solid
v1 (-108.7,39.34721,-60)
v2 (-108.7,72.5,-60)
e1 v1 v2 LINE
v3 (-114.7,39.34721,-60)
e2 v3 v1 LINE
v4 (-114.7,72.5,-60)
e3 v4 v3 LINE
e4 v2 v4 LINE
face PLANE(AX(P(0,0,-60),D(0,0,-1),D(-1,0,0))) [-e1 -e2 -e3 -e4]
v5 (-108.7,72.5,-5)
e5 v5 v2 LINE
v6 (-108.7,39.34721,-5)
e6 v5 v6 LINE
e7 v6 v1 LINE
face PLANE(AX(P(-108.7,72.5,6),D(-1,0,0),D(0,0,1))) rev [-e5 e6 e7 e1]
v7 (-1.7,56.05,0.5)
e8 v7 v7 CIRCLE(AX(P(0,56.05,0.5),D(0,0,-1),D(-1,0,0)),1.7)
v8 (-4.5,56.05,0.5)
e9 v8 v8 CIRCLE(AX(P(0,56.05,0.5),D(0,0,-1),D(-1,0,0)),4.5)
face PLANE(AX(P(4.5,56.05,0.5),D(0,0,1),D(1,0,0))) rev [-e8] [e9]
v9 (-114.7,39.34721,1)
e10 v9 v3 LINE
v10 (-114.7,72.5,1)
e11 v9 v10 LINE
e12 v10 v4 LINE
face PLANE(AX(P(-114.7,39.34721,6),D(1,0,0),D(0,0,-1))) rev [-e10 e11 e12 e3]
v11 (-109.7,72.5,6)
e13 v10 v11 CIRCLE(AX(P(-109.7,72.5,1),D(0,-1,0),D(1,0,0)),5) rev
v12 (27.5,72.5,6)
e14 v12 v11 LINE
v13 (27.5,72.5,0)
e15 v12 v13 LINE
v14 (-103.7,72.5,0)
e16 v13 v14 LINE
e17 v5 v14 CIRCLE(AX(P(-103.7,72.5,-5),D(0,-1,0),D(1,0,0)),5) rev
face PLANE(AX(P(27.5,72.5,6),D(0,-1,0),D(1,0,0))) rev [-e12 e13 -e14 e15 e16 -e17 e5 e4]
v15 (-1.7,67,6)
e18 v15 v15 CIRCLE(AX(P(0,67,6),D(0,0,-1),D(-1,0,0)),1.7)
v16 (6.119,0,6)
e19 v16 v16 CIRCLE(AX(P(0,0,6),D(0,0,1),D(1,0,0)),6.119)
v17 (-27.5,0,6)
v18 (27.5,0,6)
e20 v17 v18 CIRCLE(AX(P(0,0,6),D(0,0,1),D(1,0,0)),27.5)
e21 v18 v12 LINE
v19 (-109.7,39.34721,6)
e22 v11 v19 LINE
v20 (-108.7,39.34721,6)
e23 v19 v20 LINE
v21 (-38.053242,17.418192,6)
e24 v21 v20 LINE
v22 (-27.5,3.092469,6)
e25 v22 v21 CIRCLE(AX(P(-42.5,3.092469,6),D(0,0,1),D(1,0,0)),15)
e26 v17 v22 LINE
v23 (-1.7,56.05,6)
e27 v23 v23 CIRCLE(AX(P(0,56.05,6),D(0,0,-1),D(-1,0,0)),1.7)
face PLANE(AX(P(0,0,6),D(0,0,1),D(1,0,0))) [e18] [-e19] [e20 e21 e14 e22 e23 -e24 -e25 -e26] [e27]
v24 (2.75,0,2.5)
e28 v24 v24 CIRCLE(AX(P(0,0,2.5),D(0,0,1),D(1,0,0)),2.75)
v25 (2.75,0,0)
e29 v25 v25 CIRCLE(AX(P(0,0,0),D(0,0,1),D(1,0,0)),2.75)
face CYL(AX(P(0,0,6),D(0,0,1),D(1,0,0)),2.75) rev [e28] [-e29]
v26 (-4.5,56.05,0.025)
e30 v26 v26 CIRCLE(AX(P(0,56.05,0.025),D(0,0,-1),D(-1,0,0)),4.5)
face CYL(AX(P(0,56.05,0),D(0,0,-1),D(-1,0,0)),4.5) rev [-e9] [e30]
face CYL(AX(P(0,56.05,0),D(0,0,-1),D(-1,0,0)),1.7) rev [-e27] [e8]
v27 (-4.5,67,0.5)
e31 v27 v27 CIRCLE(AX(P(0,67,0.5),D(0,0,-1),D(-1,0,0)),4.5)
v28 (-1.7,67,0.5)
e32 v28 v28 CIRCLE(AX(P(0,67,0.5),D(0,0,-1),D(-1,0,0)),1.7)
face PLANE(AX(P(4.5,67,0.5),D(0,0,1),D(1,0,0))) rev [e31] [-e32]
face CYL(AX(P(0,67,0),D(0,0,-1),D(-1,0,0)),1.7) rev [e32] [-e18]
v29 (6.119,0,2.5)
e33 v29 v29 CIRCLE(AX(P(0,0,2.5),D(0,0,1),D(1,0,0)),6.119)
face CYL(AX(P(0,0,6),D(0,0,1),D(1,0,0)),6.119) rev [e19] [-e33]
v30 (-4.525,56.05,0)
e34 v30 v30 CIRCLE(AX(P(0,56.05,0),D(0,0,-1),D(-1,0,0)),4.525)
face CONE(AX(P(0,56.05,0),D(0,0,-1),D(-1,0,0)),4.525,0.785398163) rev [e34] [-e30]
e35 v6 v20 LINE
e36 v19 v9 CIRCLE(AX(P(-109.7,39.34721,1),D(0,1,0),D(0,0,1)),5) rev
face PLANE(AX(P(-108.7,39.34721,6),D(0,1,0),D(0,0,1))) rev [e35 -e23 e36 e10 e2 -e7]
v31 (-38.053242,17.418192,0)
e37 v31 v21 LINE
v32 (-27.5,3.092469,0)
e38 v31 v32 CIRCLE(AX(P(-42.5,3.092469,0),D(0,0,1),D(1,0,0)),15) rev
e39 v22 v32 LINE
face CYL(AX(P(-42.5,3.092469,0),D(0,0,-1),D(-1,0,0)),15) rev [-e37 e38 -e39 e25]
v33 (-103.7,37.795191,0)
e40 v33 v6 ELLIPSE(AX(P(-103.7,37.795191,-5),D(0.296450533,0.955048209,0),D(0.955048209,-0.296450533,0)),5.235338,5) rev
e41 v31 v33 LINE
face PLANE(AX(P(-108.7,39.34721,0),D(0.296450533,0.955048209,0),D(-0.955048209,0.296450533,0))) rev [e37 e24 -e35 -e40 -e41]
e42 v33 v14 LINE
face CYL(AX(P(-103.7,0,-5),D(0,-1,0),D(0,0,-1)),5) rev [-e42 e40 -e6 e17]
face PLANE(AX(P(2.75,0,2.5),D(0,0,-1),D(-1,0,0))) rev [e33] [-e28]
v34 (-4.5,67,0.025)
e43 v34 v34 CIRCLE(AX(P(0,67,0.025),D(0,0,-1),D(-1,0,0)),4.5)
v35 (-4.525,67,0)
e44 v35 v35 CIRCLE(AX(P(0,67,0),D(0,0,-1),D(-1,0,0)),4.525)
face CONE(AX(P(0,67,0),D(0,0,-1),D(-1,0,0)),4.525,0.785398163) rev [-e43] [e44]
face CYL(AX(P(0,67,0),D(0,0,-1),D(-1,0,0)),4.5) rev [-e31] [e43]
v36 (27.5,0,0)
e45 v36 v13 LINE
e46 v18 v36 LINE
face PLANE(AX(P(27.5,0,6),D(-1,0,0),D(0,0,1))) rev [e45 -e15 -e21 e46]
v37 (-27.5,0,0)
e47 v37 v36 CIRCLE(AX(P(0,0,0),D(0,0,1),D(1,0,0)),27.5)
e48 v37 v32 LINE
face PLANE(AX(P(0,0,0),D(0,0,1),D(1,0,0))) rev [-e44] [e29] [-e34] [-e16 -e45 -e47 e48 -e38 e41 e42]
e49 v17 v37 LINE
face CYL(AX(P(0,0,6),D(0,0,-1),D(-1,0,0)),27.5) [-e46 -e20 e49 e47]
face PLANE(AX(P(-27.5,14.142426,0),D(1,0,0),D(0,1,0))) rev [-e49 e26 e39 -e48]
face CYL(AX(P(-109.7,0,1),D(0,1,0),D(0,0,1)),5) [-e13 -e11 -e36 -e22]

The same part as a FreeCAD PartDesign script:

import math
import FreeCAD as App
import Part
import Sketcher
Q = App.Units.Quantity


def edges_at(feature, points):
    """Names of the edges that pass closest to the given points."""
    edges = feature.Shape.Edges
    near = lambda p: min(range(len(edges)), key=lambda i: edges[i].distToShape(Part.Vertex(*p))[0])
    return sorted({f"Edge{near(p) + 1}" for p in points})


def add_polygon(sketch, points):
    """Adds a closed chain of lines whose ends are joined by coincident constraints."""
    first, n = sketch.GeometryCount, len(points)
    for a, b in zip(points, points[1:] + points[:1]):
        sketch.addGeometry(Part.LineSegment(App.Vector(*a, 0), App.Vector(*b, 0)), False)
    for i in range(n):
        sketch.addConstraint(Sketcher.Constraint("Coincident", first + i, 2, first + (i + 1) % n, 1))

doc = App.newDocument("Part")
body = doc.addObject("PartDesign::Body", "Body")

sketch1 = body.newObject("Sketcher::SketchObject", "Sketch")
sketch1.AttachmentSupport = (doc.getObject("XY_Plane"), [""])
sketch1.MapMode = "FlatFace"
sketch1.addGeometry(Part.LineSegment(App.Vector(-28, 45, 0), App.Vector(-28, 0, 0)), False)
sketch1.addGeometry(Part.ArcOfCircle(Part.Circle(App.Vector(0, 0, 0), App.Vector(0, 0, 1), 28), math.radians(180), math.radians(360)), False)
sketch1.addGeometry(Part.LineSegment(App.Vector(28, 0, 0), App.Vector(28, 45, 0)), False)
sketch1.addGeometry(Part.ArcOfCircle(Part.Circle(App.Vector(0, 45, 0), App.Vector(0, 0, 1), 28), math.radians(0), math.radians(180)), False)
sketch1.addConstraint(Sketcher.Constraint("Tangent", 0, 2, 1, 1))
sketch1.addConstraint(Sketcher.Constraint("Tangent", 1, 2, 2, 1))
sketch1.addConstraint(Sketcher.Constraint("Tangent", 2, 2, 3, 1))
sketch1.addConstraint(Sketcher.Constraint("Tangent", 3, 2, 0, 1))
sketch1.addConstraint(Sketcher.Constraint("Vertical", 0))
sketch1.addConstraint(Sketcher.Constraint("Vertical", 2))
sketch1.addConstraint(Sketcher.Constraint("Coincident", 1, 3, -1, 1))
sketch1.addConstraint(Sketcher.Constraint("Radius", 1, Q("27.5 mm")))
sketch1.addConstraint(Sketcher.Constraint("DistanceY", 0, 2, 0, 1, Q("45 mm")))
pad1 = body.newObject("PartDesign::Pad", "Pad")
pad1.Profile = sketch1
pad1.Length = 6

sketch2 = body.newObject("Sketcher::SketchObject", "Sketch001")
sketch2.AttachmentSupport = (doc.getObject("XY_Plane"), [""])
sketch2.MapMode = "FlatFace"
add_polygon(sketch2, [(-109, 72), (-109, 0), (28, 0), (28, 72)])
sketch2.addConstraint(Sketcher.Constraint("Vertical", 0))
sketch2.addConstraint(Sketcher.Constraint("Horizontal", 1))
sketch2.addConstraint(Sketcher.Constraint("Vertical", 2))
sketch2.addConstraint(Sketcher.Constraint("Horizontal", 3))
sketch2.addConstraint(Sketcher.Constraint("PointOnObject", 0, 2, -1))
sketch2.addConstraint(Sketcher.Constraint("DistanceX", 1, 1, 1, 2, Q("136.2 mm")))
sketch2.addConstraint(Sketcher.Constraint("DistanceY", 0, 2, 0, 1, Q("72.5 mm")))
sketch2.addConstraint(Sketcher.Constraint("DistanceX", 0, 2, -1, 1, Q("108.7 mm")))
pad2 = body.newObject("PartDesign::Pad", "Pad001")
pad2.Profile = sketch2
pad2.Length = 6

sketch3 = body.newObject("Sketcher::SketchObject", "Sketch002")
sketch3.AttachmentSupport = (doc.getObject("XY_Plane"), [""])
sketch3.MapMode = "FlatFace"
sketch3.AttachmentOffset = App.Placement(App.Vector(0, 0, 6), App.Rotation())
add_polygon(sketch3, [(-109, 0), (-28, 0), (-28, 14), (-109, 39)])
sketch3.addConstraint(Sketcher.Constraint("Horizontal", 0))
sketch3.addConstraint(Sketcher.Constraint("Vertical", 1))
sketch3.addConstraint(Sketcher.Constraint("Vertical", 3))
sketch3.addConstraint(Sketcher.Constraint("PointOnObject", 0, 2, -1))
sketch3.addConstraint(Sketcher.Constraint("DistanceX", 0, 1, 0, 2, Q("81.2 mm")))
sketch3.addConstraint(Sketcher.Constraint("DistanceX", 0, 2, -1, 1, Q("27.5 mm")))
sketch3.addConstraint(Sketcher.Constraint("DistanceY", 3, 2, 3, 1, Q("39.34721 mm")))
sketch3.addConstraint(Sketcher.Constraint("DistanceY", 1, 1, 1, 2, Q("14.142426 mm")))
pocket1 = body.newObject("PartDesign::Pocket", "Pocket")
pocket1.Profile = sketch3
pocket1.Type = "ThroughAll"
doc.recompute()

fillet = body.newObject("PartDesign::Fillet", "Fillet")
fillet.Base = (pocket1, edges_at(pocket1, [(-27.5, 14.142, 3)]))
fillet.Radius = 15

sketch4 = body.newObject("Sketcher::SketchObject", "Sketch003")
sketch4.AttachmentSupport = (doc.getObject("XY_Plane"), [""])
sketch4.MapMode = "FlatFace"
add_polygon(sketch4, [(-115, 72), (-115, 39), (-109, 39), (-109, 72)])
sketch4.addConstraint(Sketcher.Constraint("Vertical", 0))
sketch4.addConstraint(Sketcher.Constraint("Horizontal", 1))
sketch4.addConstraint(Sketcher.Constraint("Vertical", 2))
sketch4.addConstraint(Sketcher.Constraint("Horizontal", 3))
sketch4.addConstraint(Sketcher.Constraint("DistanceX", 1, 1, 1, 2, Q("6 mm")))
sketch4.addConstraint(Sketcher.Constraint("DistanceX", 0, 2, -1, 1, Q("114.7 mm")))
sketch4.addConstraint(Sketcher.Constraint("DistanceY", -1, 1, 2, 2, Q("72.5 mm")))
sketch4.addConstraint(Sketcher.Constraint("DistanceY", 0, 2, 0, 1, Q("33.15279 mm")))
pad3 = body.newObject("PartDesign::Pad", "Pad002")
pad3.Profile = sketch4
pad3.Type = "TwoLengths"
pad3.Length = 6
pad3.Length2 = 60
doc.recompute()

fillet2 = body.newObject("PartDesign::Fillet", "Fillet001")
fillet2.Base = (pad3, edges_at(pad3, [(-108.7, 55.924, 0)]))
fillet2.Radius = 5
doc.recompute()

fillet3 = body.newObject("PartDesign::Fillet", "Fillet002")
fillet3.Base = (fillet2, edges_at(fillet2, [(-114.7, 55.924, 6)]))
fillet3.Radius = 5

sketch5 = body.newObject("Sketcher::SketchObject", "Sketch004")
sketch5.AttachmentSupport = (doc.getObject("YZ_Plane"), [""])
sketch5.MapMode = "FlatFace"
add_polygon(sketch5, [(67, 6), (67, 0), (71.525, 0), (71.5, 0.025), (71.5, 0.5), (68.7, 0.5), (68.7, 6)])
sketch5.addGeometry(Part.LineSegment(App.Vector(67, 0, 0), App.Vector(67, 6, 0)), True)
sketch5.addConstraint(Sketcher.Constraint("Vertical", 0))
sketch5.addConstraint(Sketcher.Constraint("Horizontal", 1))
sketch5.addConstraint(Sketcher.Constraint("Vertical", 3))
sketch5.addConstraint(Sketcher.Constraint("Horizontal", 4))
sketch5.addConstraint(Sketcher.Constraint("Vertical", 5))
sketch5.addConstraint(Sketcher.Constraint("Horizontal", 6))
sketch5.addConstraint(Sketcher.Constraint("Vertical", 7))
sketch5.addConstraint(Sketcher.Constraint("Coincident", 7, 1, 0, 2))
sketch5.addConstraint(Sketcher.Constraint("PointOnObject", 0, 2, -1))
sketch5.addConstraint(Sketcher.Constraint("Horizontal", 5, 2, 7, 2))
sketch5.addConstraint(Sketcher.Constraint("DistanceY", 0, 2, 0, 1, Q("6 mm")))
sketch5.addConstraint(Sketcher.Constraint("Angle", 2, Q("135 deg")))
sketch5.addConstraint(Sketcher.Constraint("DistanceX", 4, 2, 4, 1, Q("2.8 mm")))
sketch5.addConstraint(Sketcher.Constraint("DistanceX", 6, 2, 6, 1, Q("1.7 mm")))
sketch5.addConstraint(Sketcher.Constraint("DistanceY", 5, 1, 5, 2, Q("5.5 mm")))
sketch5.addConstraint(Sketcher.Constraint("DistanceX", -1, 1, 0, 2, Q("67 mm")))
sketch5.addConstraint(Sketcher.Constraint("DistanceX", 1, 1, 1, 2, Q("4.525 mm")))
groove = body.newObject("PartDesign::Groove", "Groove")
groove.Profile = sketch5
groove.ReferenceAxis = (sketch5, ["Axis0"])
groove.Angle = 360
doc.recompute()

linearpattern = body.newObject("PartDesign::LinearPattern", "LinearPattern")
linearpattern.Originals = [groove]
linearpattern.Direction = (doc.getObject("Y_Axis"), [""])
linearpattern.Mode = "offset"
linearpattern.Offset = 10.95
linearpattern.Occurrences = 2
linearpattern.Reversed = True
body.Tip = linearpattern

sketch6 = body.newObject("Sketcher::SketchObject", "Sketch005")
sketch6.AttachmentSupport = (doc.getObject("XY_Plane"), [""])
sketch6.MapMode = "FlatFace"
sketch6.AttachmentOffset = App.Placement(App.Vector(0, 0, 6), App.Rotation())
sketch6.addGeometry(Part.Circle(App.Vector(0, 0, 0), App.Vector(0, 0, 1), 2.8), False)
sketch6.addConstraint(Sketcher.Constraint("Coincident", 0, 3, -1, 1))
sketch6.addConstraint(Sketcher.Constraint("Diameter", 0, Q("5.5 mm")))
doc.recompute()
hole = body.newObject("PartDesign::Hole", "Hole")
hole.Profile = sketch6
hole.ThreadType = "None"
hole.Diameter = 5.5
hole.DepthType = "ThroughAll"
hole.HoleCutType = "Counterbore"
hole.HoleCutDiameter = 12.238
hole.HoleCutDepth = 3.5

doc.recompute()
